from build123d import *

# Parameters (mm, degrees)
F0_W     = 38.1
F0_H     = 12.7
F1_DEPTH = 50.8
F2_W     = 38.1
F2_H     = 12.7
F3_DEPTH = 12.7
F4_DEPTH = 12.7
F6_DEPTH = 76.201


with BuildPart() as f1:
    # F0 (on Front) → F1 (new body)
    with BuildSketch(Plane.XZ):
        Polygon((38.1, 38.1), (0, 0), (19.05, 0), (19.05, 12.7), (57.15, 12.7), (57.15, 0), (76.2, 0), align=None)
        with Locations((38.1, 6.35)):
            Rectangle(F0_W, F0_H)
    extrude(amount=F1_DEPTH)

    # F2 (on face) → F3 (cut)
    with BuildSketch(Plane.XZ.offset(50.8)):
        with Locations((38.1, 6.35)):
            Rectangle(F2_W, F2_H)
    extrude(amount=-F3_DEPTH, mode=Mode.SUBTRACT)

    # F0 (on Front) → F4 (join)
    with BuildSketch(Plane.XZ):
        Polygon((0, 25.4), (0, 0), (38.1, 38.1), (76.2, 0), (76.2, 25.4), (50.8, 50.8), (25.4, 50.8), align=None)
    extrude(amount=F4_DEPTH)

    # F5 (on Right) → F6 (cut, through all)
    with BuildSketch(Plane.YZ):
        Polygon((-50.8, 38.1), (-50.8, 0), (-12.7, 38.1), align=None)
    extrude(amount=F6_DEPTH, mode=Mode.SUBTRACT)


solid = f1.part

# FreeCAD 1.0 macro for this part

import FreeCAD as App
import Part
import Sketcher

V = App.Vector
Q = App.Units.Quantity


def add_polygon(sketch, points):
    """Adds a closed chain of lines whose ends are joined by coincident constraints."""
    first, n = sketch.GeometryCount, len(points)
    for a, b in zip(points, points[1:] + points[:1]):
        sketch.addGeometry(Part.LineSegment(App.Vector(*a, 0), App.Vector(*b, 0)), False)
    for i in range(n):
        sketch.addConstraint(Sketcher.Constraint("Coincident", first + i, 2, first + (i + 1) % n, 1))

doc = App.newDocument("Part")
body = doc.addObject("PartDesign::Body", "Body")

# Sketch on XZ plane
sketch1 = body.newObject("Sketcher::SketchObject", "Sketch")
sketch1.AttachmentSupport = (doc.getObject("XZ_Plane"), [""])
sketch1.MapMode = "FlatFace"
add_polygon(sketch1, [(38, 38), (0, 0), (76, 0)])  # lines 0-2
sketch1.addConstraint([
    Sketcher.Constraint("Horizontal", 1),
    Sketcher.Constraint("Coincident", 0, 2, -1, 1),
    Sketcher.Constraint("Perpendicular", 0, 2),
    Sketcher.Constraint("Equal", 0, 2),
    Sketcher.Constraint("DistanceX", 1, 1, 1, 2, Q("3 in")),
])
pad1 = body.newObject("PartDesign::Pad", "Pad")
pad1.Profile = sketch1
pad1.Length = Q("2 in")

# Sketch on XZ plane
sketch2 = body.newObject("Sketcher::SketchObject", "Sketch001")
sketch2.AttachmentSupport = (doc.getObject("XZ_Plane"), [""])
sketch2.MapMode = "FlatFace"
sketch2.AttachmentOffset = App.Placement(V(0, 0, 2 * 25.4), App.Rotation())
add_polygon(sketch2, [(19, 13), (19, 0), (57, 0), (57, 13)])  # lines 0-3
sketch2.addConstraint([
    Sketcher.Constraint("Vertical", 0),
    Sketcher.Constraint("Horizontal", 1),
    Sketcher.Constraint("Vertical", 2),
    Sketcher.Constraint("Horizontal", 3),
    Sketcher.Constraint("PointOnObject", 0, 2, -1),
    Sketcher.Constraint("DistanceX", 1, 1, 1, 2, Q("1.5 in")),
    Sketcher.Constraint("DistanceY", 0, 2, 0, 1, Q("0.5 in")),
    Sketcher.Constraint("DistanceX", -1, 1, 0, 2, Q("0.75 in")),
])
pocket1 = body.newObject("PartDesign::Pocket", "Pocket")
pocket1.Profile = sketch2
pocket1.Length = Q("0.5 in")

# Sketch on XZ plane
sketch3 = body.newObject("Sketcher::SketchObject", "Sketch002")
sketch3.AttachmentSupport = (doc.getObject("XZ_Plane"), [""])
sketch3.MapMode = "FlatFace"
add_polygon(sketch3, [(0, 25), (0, 0), (38, 38), (76, 0), (76, 25), (51, 51), (25, 51)])  # lines 0-6
sketch3.addConstraint([
    Sketcher.Constraint("Vertical", 0),
    Sketcher.Constraint("Vertical", 3),
    Sketcher.Constraint("Horizontal", 5),
    Sketcher.Constraint("Coincident", 0, 2, -1, 1),
    Sketcher.Constraint("PointOnObject", 2, 2, -1),
    Sketcher.Constraint("Perpendicular", 1, 2),
    Sketcher.Constraint("Parallel", 2, 4),
    Sketcher.Constraint("Perpendicular", 4, 6),
    Sketcher.Constraint("Horizontal", 3, 2, 6, 2),
    Sketcher.Constraint("Equal", 5, 0),
    Sketcher.Constraint("Equal", 1, 2),
    Sketcher.Constraint("DistanceX", 5, 2, 5, 1, Q("1 in")),
    Sketcher.Constraint("DistanceX", -1, 1, 2, 2, Q("3 in")),
])
pad2 = body.newObject("PartDesign::Pad", "Pad001")
pad2.Profile = sketch3
pad2.Length = Q("0.5 in")

# Sketch on YZ plane
sketch4 = body.newObject("Sketcher::SketchObject", "Sketch003")
sketch4.AttachmentSupport = (doc.getObject("YZ_Plane"), [""])
sketch4.MapMode = "FlatFace"
add_polygon(sketch4, [(-51, 38), (-51, 0), (-13, 38)])  # lines 0-2
sketch4.addConstraint([
    Sketcher.Constraint("Vertical", 0),
    Sketcher.Constraint("Horizontal", 2),
    Sketcher.Constraint("PointOnObject", 0, 2, -1),
    Sketcher.Constraint("Equal", 2, 0),
    Sketcher.Constraint("DistanceX", 2, 2, 2, 1, Q("1.5 in")),
    Sketcher.Constraint("DistanceX", 0, 2, -1, 1, Q("2 in")),
])
pocket2 = body.newObject("PartDesign::Pocket", "Pocket001")
pocket2.Profile = sketch4
pocket2.Type = "ThroughAll"
pocket2.Reversed = True

doc.recompute()
